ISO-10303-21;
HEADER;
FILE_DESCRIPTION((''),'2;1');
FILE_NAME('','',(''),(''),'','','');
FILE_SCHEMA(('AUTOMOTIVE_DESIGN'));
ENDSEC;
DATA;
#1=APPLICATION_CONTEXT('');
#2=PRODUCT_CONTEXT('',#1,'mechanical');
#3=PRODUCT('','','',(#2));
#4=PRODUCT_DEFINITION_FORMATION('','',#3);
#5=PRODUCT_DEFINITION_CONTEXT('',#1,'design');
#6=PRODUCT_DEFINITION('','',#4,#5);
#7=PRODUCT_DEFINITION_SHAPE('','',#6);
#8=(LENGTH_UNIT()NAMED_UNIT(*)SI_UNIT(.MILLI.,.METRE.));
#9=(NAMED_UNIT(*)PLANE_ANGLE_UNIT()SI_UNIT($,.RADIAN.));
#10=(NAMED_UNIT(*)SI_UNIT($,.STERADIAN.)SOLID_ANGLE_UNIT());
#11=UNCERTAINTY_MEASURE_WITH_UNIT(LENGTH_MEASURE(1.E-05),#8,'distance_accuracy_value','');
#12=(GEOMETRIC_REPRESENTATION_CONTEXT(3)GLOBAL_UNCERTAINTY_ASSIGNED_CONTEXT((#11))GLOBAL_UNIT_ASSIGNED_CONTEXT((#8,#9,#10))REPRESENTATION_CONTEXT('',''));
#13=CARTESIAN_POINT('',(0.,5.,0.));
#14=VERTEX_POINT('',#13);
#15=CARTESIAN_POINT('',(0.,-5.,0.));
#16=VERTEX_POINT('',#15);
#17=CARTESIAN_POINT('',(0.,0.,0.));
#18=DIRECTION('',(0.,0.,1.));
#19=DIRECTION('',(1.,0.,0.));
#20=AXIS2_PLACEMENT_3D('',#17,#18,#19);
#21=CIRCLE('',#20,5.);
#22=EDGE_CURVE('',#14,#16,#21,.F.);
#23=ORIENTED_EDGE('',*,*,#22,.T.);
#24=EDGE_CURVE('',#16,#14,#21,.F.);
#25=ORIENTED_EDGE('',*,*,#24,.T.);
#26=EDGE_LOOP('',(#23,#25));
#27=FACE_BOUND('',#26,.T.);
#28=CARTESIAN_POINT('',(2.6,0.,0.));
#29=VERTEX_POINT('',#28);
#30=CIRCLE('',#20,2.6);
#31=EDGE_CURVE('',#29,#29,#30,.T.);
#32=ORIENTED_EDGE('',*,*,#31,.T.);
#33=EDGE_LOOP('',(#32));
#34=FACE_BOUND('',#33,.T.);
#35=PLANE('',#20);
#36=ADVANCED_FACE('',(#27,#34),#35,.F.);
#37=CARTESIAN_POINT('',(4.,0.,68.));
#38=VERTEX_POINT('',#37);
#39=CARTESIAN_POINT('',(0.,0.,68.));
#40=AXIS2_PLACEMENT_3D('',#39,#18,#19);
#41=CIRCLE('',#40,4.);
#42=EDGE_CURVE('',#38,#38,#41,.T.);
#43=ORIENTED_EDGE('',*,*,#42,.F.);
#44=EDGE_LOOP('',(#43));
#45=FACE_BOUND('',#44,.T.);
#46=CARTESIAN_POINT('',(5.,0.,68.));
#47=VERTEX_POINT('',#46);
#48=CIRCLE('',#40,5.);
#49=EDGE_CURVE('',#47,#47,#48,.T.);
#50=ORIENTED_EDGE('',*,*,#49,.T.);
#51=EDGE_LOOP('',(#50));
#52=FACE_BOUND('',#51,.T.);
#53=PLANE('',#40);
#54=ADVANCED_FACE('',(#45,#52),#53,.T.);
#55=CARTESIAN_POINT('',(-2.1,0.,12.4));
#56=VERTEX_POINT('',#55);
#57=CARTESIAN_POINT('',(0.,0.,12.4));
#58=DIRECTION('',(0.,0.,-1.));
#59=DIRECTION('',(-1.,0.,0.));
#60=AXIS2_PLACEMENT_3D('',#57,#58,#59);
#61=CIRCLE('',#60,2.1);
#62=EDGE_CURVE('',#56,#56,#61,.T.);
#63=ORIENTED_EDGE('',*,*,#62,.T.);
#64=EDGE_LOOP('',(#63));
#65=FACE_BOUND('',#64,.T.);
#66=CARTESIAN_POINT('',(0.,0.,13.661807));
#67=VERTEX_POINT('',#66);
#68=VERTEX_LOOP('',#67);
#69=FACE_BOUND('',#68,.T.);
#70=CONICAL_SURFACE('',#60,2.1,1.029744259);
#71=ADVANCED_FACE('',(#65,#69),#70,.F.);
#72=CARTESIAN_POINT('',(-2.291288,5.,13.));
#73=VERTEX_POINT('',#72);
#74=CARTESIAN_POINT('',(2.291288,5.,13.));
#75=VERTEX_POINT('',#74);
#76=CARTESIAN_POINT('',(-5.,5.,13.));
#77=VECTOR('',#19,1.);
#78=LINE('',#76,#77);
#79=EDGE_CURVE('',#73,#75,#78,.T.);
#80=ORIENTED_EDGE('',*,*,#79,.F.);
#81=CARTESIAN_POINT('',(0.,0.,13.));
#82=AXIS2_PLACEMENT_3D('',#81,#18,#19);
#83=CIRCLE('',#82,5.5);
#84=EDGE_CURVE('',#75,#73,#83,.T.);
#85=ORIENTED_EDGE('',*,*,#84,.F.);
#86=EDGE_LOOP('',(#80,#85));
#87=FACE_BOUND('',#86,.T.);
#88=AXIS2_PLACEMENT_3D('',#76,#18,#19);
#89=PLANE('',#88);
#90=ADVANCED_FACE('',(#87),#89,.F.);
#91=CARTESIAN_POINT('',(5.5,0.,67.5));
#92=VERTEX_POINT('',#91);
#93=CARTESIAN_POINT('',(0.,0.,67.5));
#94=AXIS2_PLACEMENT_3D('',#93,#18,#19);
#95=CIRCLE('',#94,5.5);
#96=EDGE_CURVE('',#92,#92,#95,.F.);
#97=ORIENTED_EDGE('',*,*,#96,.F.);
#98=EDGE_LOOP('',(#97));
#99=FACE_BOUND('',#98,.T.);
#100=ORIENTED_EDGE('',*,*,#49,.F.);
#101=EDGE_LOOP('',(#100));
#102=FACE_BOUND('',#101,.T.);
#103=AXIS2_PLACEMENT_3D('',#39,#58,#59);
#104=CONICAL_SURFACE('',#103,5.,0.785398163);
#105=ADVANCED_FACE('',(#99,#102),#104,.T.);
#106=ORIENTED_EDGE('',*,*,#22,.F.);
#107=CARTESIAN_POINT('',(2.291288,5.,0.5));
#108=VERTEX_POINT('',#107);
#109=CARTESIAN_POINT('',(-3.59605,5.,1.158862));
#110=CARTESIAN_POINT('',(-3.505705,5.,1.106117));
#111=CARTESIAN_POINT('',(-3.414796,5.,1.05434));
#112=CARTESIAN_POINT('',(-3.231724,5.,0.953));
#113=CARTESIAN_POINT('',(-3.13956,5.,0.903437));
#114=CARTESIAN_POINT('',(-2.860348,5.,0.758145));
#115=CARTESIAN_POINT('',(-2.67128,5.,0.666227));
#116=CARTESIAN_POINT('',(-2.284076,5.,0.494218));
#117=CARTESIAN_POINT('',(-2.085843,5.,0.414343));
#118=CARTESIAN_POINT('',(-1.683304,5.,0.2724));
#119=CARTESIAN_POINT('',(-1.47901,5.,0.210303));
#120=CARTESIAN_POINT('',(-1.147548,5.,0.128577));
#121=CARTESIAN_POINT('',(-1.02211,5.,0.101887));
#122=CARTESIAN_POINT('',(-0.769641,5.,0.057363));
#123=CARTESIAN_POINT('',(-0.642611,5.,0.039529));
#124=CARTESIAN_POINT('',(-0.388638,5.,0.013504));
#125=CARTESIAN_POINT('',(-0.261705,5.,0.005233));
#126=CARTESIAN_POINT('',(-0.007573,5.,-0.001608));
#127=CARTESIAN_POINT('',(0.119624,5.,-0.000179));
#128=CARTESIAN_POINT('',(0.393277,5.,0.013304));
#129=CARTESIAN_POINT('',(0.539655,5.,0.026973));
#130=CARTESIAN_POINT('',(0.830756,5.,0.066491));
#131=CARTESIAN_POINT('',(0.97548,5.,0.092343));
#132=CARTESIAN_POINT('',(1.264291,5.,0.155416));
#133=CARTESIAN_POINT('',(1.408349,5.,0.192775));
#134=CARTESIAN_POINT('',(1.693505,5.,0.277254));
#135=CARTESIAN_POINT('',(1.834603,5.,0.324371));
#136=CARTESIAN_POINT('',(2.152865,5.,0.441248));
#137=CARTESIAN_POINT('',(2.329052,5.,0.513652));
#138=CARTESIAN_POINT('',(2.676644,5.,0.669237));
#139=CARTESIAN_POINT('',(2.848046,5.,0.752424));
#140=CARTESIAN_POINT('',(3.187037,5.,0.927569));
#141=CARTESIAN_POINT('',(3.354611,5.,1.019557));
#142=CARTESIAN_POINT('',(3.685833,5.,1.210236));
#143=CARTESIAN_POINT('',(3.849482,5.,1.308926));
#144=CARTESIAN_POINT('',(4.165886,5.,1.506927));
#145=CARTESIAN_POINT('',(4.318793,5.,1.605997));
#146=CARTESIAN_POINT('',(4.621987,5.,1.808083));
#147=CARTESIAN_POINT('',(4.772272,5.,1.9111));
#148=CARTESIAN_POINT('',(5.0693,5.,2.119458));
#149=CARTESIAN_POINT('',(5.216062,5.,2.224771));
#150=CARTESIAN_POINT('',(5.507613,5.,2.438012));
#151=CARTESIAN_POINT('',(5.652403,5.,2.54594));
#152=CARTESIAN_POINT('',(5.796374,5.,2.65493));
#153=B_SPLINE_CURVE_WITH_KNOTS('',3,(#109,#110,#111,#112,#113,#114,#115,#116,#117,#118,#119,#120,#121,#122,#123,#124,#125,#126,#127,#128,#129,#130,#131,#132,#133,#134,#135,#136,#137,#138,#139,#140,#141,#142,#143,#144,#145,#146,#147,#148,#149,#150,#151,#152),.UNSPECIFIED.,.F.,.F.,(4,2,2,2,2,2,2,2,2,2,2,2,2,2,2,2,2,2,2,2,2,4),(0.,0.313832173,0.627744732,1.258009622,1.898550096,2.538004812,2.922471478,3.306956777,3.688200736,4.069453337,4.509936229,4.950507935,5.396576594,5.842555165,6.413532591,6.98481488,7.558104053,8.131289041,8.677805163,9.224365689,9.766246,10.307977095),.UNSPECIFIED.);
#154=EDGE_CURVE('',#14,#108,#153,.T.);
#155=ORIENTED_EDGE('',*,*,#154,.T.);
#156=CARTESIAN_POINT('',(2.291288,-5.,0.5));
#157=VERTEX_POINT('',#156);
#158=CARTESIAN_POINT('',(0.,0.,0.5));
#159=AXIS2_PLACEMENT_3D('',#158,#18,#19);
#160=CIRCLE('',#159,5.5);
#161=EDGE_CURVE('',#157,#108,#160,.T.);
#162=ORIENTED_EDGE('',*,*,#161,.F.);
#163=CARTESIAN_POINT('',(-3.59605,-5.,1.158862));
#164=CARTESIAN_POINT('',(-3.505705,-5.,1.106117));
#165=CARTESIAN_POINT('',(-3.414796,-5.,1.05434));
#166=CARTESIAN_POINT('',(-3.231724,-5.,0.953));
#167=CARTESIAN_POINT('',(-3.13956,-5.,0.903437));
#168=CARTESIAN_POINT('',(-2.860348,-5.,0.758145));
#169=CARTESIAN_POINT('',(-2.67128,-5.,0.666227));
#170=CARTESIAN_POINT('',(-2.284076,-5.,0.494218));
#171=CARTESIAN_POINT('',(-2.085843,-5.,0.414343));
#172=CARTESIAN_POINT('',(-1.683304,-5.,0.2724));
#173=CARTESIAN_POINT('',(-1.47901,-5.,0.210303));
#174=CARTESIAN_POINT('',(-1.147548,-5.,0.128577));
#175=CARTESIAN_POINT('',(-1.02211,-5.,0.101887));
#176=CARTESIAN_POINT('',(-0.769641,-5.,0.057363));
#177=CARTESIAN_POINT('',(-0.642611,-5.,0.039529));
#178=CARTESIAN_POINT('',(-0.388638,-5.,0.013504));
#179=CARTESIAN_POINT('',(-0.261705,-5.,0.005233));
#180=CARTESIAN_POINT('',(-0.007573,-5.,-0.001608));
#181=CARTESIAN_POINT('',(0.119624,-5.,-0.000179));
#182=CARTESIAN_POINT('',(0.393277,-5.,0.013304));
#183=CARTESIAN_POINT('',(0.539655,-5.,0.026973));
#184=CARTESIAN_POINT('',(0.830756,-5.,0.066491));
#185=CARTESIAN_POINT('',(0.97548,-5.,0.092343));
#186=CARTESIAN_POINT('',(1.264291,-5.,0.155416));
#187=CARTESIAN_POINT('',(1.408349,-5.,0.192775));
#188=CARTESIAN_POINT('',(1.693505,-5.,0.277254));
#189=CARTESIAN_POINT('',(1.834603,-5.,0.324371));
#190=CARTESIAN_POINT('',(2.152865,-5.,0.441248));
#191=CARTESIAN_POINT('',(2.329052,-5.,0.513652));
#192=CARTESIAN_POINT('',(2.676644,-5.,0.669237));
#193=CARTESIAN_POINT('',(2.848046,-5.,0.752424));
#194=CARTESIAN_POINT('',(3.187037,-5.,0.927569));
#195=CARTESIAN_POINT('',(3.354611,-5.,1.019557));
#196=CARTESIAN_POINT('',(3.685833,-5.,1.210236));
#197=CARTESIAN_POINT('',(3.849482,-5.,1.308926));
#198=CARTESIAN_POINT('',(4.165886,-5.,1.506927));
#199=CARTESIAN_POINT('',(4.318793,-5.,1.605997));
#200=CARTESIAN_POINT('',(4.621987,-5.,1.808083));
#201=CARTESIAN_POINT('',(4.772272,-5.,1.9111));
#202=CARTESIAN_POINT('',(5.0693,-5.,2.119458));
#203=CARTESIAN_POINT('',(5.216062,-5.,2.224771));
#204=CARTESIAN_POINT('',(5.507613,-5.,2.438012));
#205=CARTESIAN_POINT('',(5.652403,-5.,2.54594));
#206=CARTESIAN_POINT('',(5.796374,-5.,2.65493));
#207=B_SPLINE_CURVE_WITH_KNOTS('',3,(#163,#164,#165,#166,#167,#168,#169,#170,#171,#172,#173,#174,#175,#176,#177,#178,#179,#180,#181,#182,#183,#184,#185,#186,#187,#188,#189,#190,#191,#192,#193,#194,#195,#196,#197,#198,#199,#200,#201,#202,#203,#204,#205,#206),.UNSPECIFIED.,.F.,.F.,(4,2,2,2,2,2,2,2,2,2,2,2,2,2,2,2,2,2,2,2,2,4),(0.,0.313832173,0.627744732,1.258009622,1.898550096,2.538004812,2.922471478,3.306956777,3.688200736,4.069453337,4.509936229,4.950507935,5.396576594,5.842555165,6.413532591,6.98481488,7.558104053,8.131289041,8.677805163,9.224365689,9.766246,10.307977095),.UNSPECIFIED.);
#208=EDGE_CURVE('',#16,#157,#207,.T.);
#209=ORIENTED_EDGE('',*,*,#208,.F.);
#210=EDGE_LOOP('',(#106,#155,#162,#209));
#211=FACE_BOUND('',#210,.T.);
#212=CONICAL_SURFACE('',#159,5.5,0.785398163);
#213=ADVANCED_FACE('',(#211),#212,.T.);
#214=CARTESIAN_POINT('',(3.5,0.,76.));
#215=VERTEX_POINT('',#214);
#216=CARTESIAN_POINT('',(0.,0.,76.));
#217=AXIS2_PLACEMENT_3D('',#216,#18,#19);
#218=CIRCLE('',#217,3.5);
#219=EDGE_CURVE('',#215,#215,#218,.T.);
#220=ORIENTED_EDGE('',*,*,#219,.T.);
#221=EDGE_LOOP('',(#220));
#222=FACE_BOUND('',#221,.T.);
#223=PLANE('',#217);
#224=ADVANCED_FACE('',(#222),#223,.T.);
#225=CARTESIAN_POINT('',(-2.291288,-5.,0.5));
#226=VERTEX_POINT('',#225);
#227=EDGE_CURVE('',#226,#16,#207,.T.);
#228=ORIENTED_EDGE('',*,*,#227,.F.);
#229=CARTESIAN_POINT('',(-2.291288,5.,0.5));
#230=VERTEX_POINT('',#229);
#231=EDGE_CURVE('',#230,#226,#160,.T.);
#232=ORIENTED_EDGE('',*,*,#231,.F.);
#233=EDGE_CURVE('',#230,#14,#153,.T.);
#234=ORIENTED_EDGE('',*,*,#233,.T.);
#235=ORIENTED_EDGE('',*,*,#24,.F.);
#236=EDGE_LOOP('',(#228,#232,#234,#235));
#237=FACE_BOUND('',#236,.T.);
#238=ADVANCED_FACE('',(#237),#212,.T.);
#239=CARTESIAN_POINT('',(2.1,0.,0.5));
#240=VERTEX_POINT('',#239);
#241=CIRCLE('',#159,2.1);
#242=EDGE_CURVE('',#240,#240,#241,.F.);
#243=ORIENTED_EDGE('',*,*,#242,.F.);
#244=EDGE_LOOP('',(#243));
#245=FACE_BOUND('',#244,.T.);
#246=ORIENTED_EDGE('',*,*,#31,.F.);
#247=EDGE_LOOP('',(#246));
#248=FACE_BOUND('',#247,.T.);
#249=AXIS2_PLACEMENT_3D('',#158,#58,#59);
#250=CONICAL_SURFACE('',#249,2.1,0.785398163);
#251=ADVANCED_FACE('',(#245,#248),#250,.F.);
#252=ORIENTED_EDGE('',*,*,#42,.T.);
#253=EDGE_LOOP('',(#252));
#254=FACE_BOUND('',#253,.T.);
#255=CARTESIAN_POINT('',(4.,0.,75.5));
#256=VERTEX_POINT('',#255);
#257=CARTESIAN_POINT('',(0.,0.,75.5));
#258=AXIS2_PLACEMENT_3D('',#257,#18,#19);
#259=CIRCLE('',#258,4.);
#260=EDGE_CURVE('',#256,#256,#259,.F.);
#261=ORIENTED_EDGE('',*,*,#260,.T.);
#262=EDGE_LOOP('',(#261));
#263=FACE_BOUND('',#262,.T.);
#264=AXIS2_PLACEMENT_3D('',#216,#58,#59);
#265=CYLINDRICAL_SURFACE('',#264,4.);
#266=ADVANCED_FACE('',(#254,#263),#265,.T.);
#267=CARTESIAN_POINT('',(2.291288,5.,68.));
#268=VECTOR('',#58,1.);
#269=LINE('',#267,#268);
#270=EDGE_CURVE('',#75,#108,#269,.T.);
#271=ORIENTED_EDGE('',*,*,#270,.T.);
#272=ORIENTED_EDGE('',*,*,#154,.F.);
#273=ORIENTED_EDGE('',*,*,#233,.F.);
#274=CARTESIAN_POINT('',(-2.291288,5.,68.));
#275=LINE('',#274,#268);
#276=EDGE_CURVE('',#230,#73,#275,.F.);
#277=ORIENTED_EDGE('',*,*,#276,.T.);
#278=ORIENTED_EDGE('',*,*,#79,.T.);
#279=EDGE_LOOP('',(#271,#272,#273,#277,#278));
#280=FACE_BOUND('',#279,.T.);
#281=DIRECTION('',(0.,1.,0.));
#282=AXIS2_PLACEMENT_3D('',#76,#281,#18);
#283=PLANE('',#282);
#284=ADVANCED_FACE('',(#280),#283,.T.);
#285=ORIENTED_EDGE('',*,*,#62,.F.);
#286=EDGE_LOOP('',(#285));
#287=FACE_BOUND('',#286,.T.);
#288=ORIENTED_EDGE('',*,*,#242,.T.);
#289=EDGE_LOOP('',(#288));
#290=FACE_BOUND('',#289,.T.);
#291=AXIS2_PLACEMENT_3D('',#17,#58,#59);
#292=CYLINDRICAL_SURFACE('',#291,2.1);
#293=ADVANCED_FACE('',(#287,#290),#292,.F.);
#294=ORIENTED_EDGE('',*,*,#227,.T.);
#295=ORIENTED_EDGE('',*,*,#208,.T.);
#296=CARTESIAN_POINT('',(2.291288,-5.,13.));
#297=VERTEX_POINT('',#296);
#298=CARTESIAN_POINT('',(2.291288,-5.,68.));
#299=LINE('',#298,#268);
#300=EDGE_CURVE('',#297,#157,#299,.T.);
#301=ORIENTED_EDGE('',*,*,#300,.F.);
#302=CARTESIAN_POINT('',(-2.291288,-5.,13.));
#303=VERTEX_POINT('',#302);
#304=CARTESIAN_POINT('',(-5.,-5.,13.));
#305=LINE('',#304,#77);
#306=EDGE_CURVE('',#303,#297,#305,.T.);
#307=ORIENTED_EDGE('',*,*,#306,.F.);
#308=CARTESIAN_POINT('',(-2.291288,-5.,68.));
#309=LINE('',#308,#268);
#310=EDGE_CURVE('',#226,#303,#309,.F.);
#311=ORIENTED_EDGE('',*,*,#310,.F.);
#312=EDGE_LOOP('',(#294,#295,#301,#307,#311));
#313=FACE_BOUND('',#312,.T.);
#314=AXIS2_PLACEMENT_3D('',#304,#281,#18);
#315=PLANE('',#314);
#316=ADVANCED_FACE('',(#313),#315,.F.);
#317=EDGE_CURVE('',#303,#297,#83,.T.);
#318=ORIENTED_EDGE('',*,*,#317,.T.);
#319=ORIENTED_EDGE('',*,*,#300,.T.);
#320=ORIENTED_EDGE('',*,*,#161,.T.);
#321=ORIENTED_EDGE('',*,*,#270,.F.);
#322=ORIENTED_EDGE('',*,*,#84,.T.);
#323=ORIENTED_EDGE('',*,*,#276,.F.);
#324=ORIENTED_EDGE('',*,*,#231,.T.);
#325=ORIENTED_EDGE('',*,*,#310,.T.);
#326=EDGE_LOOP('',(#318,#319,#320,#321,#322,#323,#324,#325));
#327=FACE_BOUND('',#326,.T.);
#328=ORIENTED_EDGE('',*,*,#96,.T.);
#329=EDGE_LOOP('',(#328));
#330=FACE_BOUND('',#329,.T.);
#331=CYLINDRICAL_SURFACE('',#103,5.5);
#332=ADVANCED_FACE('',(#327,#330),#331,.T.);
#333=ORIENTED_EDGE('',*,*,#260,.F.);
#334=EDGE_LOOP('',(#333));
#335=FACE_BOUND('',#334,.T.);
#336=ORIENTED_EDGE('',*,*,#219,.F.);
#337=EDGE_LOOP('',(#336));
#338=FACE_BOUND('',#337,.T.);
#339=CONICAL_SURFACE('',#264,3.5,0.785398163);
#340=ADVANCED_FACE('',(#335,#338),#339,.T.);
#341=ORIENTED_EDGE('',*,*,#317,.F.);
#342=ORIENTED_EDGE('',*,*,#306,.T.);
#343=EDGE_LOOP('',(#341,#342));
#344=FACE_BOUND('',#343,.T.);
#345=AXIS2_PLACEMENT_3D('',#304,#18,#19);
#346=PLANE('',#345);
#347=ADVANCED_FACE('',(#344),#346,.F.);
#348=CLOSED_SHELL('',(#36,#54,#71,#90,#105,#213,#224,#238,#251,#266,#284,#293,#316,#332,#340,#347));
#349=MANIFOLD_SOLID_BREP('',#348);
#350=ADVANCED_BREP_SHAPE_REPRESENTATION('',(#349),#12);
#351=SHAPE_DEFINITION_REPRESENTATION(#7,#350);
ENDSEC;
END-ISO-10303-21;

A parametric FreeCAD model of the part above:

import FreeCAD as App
import Part
import Sketcher
from FreeCAD import Vector
Q = App.Units.Quantity


def edges_at(feature, points):
    """Names of the edges that pass closest to the given points."""
    edges = feature.Shape.Edges
    near = lambda p: min(range(len(edges)), key=lambda i: edges[i].distToShape(Part.Vertex(*p))[0])
    return sorted({f"Edge{near(p) + 1}" for p in points})


def add_polygon(sketch, points):
    """Adds a closed chain of lines whose ends are joined by coincident constraints."""
    first, n = sketch.GeometryCount, len(points)
    for a, b in zip(points, points[1:] + points[:1]):
        sketch.addGeometry(Part.LineSegment(App.Vector(*a, 0), App.Vector(*b, 0)), False)
    for i in range(n):
        sketch.addConstraint(Sketcher.Constraint("Coincident", first + i, 2, first + (i + 1) % n, 1))

doc = App.newDocument("Part")
params = doc.addObject("Spreadsheet::Sheet", "Params")
for row, (alias, value) in enumerate([
    ("sketch1_diameter", "11 mm"),
    ("pad1_length", "68 mm"),
    ("chamfer_size", "0.5 mm"),
    ("sketch2_diameter", "8 mm"),
    ("pad2_length", "8 mm"),
    ("chamfer2_size", "0.5 mm"),
    ("sketch3_diameter", "4.2 mm"),
    ("hole_diameter", "4.2 mm"),
    ("hole_depth", "12.4 mm"),
    ("chamfer3_size", "0.5 mm"),
    ("sketch4_width", "10 mm"),
    ("sketch4_height", "3 mm"),
    ("pocket1_length", "13 mm"),
], start=1):
    params.set(f"A{row}", alias)
    params.set(f"B{row}", "=" + value)
    params.setAlias(f"B{row}", alias)

body = doc.addObject("PartDesign::Body", "Body")

sketch1 = doc.addObject("Sketcher::SketchObject", "Sketch")
body.addObject(sketch1)
sketch1.AttachmentSupport = (doc.XY_Plane, [""])
sketch1.MapMode = "FlatFace"
sketch1.addGeometry(Part.Circle(Vector(0, 0, 0), Vector(0, 0, 1), 6), False)
sketch1.addConstraint([
    Sketcher.Constraint("Coincident", 0, 3, -1, 1),
    Sketcher.Constraint("Diameter", 0, Q("11 mm")),
])
sketch1.setExpression("Constraints[1]", "Params.sketch1_diameter")
pad1 = doc.addObject("PartDesign::Pad", "Pad")
body.addObject(pad1)
pad1.Profile = sketch1
pad1.setExpression("Length", "Params.pad1_length")
doc.recompute()

chamfer = doc.addObject("PartDesign::Chamfer", "Chamfer")
body.addObject(chamfer)
chamfer.Base = (pad1, edges_at(pad1, [(-5.5, 0, 0), (-5.5, 0, 68)]))
chamfer.setExpression("Size", "Params.chamfer_size")

sketch2 = doc.addObject("Sketcher::SketchObject", "Sketch001")
body.addObject(sketch2)
sketch2.AttachmentSupport = (doc.XY_Plane, [""])
sketch2.MapMode = "FlatFace"
sketch2.AttachmentOffset = App.Placement(Vector(0, 0, 68), App.Rotation())
sketch2.addGeometry(Part.Circle(Vector(0, 0, 0), Vector(0, 0, 1), 4), False)
sketch2.addConstraint([
    Sketcher.Constraint("Coincident", 0, 3, -1, 1),
    Sketcher.Constraint("Diameter", 0, Q("8 mm")),
])
sketch2.setExpression("Constraints[1]", "Params.sketch2_diameter")
pad2 = doc.addObject("PartDesign::Pad", "Pad001")
body.addObject(pad2)
pad2.Profile = sketch2
pad2.setExpression("Length", "Params.pad2_length")
doc.recompute()

chamfer2 = doc.addObject("PartDesign::Chamfer", "Chamfer001")
body.addObject(chamfer2)
chamfer2.Base = (pad2, edges_at(pad2, [(-4, 0, 76)]))
chamfer2.setExpression("Size", "Params.chamfer2_size")

sketch3 = doc.addObject("Sketcher::SketchObject", "Sketch002")
body.addObject(sketch3)
sketch3.AttachmentSupport = (doc.XY_Plane, [""])
sketch3.MapMode = "FlatFace"
sketch3.addGeometry(Part.Circle(Vector(0, 0, 0), Vector(0, 0, 1), 2.1), False)
sketch3.addConstraint([
    Sketcher.Constraint("Coincident", 0, 3, -1, 1),
    Sketcher.Constraint("Diameter", 0, Q("4.2 mm")),
])
sketch3.setExpression("Constraints[1]", "Params.sketch3_diameter")
doc.recompute()
hole = doc.addObject("PartDesign::Hole", "Hole")
body.addObject(hole)
hole.Profile = sketch3
hole.ThreadType = "None"
hole.setExpression("Diameter", "Params.hole_diameter")
hole.DepthType = "Dimension"
hole.setExpression("Depth", "Params.hole_depth")
hole.DrillPoint = "Angled"
hole.DrillPointAngle = 118
hole.Reversed = True
doc.recompute()

chamfer3 = doc.addObject("PartDesign::Chamfer", "Chamfer002")
body.addObject(chamfer3)
chamfer3.Base = (hole, edges_at(hole, [(-2.1, 0, 0)]))
chamfer3.setExpression("Size", "Params.chamfer3_size")

sketch4 = doc.addObject("Sketcher::SketchObject", "Sketch003")
body.addObject(sketch4)
sketch4.AttachmentSupport = (doc.XY_Plane, [""])
sketch4.MapMode = "FlatFace"
add_polygon(sketch4, [(-5, 8), (-5, 5), (5, 5), (5, 8)])
sketch4.addConstraint([
    Sketcher.Constraint("Vertical", 0),
    Sketcher.Constraint("Horizontal", 1),
    Sketcher.Constraint("Vertical", 2),
    Sketcher.Constraint("Horizontal", 3),
    Sketcher.Constraint("DistanceX", 1, 1, 1, 2, Q("10 mm")),
    Sketcher.Constraint("DistanceY", 0, 2, 0, 1, Q("3 mm")),
    Sketcher.Constraint("DistanceX", 0, 2, -1, 1, Q("5 mm")),
    Sketcher.Constraint("DistanceY", -1, 1, 0, 2, Q("5 mm")),
])
sketch4.setExpression("Constraints[8]", "Params.sketch4_width")
sketch4.setExpression("Constraints[9]", "Params.sketch4_height")
pocket1 = doc.addObject("PartDesign::Pocket", "Pocket")
body.addObject(pocket1)
pocket1.Profile = sketch4
pocket1.setExpression("Length", "Params.pocket1_length")
pocket1.Reversed = True
doc.recompute()

mirrored = doc.addObject("PartDesign::Mirrored", "Mirrored")
body.addObject(mirrored)
mirrored.Originals = [pocket1]
mirrored.MirrorPlane = (doc.XZ_Plane, [""])
body.Tip = mirrored

doc.recompute()
